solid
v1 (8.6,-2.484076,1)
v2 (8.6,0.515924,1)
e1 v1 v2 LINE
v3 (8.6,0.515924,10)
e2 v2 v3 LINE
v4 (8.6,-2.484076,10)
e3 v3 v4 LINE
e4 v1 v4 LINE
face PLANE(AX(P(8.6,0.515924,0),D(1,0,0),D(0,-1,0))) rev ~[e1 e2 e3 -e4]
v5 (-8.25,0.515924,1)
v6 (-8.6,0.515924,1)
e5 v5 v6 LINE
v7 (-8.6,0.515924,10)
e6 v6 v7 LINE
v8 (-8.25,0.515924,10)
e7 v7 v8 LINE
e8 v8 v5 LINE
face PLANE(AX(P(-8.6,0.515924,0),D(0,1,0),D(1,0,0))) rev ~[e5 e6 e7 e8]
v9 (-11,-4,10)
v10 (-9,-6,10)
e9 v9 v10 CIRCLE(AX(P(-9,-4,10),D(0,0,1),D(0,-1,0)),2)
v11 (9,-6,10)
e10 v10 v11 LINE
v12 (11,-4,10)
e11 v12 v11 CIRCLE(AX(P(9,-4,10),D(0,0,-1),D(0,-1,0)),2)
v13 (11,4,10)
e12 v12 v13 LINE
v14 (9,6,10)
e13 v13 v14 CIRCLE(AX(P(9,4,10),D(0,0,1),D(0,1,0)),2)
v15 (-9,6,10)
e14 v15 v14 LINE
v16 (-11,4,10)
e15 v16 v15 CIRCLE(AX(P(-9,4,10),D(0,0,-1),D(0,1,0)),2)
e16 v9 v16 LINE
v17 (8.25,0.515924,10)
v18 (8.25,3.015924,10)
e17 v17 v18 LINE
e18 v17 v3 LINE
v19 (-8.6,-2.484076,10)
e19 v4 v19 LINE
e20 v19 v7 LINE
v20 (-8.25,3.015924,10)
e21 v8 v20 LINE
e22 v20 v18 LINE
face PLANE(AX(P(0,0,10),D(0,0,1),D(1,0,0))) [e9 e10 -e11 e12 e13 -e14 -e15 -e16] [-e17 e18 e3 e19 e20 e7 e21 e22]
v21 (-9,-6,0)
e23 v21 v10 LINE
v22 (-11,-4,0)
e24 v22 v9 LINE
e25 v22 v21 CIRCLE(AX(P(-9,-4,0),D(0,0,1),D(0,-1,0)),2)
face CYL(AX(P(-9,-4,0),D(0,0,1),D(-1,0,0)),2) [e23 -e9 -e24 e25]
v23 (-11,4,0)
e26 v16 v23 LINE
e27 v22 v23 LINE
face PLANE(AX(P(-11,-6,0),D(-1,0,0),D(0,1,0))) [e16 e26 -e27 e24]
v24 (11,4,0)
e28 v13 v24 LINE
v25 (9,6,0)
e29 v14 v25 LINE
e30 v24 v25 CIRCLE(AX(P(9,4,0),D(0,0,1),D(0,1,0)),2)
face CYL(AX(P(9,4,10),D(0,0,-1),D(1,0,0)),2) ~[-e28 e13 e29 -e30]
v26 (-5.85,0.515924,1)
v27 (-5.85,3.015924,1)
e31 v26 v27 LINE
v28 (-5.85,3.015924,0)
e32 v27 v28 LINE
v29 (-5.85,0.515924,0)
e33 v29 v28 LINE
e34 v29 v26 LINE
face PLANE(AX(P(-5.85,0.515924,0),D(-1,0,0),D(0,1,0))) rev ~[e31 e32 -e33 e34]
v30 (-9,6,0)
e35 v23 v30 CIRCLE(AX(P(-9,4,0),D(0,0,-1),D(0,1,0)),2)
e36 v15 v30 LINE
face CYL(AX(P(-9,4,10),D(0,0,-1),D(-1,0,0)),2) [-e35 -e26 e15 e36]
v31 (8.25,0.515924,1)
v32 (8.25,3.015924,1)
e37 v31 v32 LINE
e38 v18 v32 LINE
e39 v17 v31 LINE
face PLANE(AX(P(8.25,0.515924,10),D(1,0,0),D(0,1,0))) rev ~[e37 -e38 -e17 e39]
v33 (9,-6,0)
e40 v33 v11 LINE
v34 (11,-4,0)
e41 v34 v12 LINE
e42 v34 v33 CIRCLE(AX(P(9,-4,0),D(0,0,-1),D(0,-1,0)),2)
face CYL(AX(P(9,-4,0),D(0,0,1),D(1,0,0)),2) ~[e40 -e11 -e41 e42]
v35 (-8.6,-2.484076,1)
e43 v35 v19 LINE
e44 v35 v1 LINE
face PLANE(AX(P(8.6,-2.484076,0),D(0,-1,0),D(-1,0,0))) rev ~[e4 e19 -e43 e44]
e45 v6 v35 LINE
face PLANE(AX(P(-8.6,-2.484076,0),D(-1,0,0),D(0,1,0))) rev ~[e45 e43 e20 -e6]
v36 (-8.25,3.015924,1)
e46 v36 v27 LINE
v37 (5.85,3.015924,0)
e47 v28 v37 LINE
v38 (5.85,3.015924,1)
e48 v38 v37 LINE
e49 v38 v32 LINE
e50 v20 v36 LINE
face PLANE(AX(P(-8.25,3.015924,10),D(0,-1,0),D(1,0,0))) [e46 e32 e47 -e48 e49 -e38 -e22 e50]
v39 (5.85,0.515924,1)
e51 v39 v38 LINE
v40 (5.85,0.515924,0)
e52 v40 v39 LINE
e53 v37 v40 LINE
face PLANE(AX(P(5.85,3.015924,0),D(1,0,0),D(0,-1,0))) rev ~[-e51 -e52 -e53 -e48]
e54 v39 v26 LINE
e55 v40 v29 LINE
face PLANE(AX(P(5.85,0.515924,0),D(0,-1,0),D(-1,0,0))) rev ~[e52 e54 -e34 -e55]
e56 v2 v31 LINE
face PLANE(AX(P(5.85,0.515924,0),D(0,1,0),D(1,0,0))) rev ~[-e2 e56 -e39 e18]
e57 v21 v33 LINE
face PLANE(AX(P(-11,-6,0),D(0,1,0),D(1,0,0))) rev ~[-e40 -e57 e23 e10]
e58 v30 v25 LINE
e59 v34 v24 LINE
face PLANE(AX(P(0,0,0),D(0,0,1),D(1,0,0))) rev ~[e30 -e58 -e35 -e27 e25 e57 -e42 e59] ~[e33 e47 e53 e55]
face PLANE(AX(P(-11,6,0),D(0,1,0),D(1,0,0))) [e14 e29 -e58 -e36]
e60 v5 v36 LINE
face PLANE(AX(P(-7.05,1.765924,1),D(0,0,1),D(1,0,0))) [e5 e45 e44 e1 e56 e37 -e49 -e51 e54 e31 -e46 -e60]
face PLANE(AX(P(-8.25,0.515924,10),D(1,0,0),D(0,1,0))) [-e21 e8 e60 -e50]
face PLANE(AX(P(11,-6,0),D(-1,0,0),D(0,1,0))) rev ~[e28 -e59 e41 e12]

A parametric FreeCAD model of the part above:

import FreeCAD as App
import Part
import Sketcher
Q = App.Units.Quantity


def edges_at(feature, points):
    """Names of the edges that pass closest to the given points."""
    edges = feature.Shape.Edges
    near = lambda p: min(range(len(edges)), key=lambda i: edges[i].distToShape(Part.Vertex(*p))[0])
    return sorted({f"Edge{near(p) + 1}" for p in points})

doc = App.newDocument("Part")
body = doc.addObject("PartDesign::Body", "Body")

sketch1 = doc.addObject("Sketcher::SketchObject", "Sketch")
body.addObject(sketch1)
sketch1.AttachmentSupport = (doc.XY_Plane, [""])
sketch1.MapMode = "FlatFace"
sketch1.addGeometry(Part.LineSegment(App.Vector(-11, 6, 0), App.Vector(-11, -6, 0)), False)
sketch1.addGeometry(Part.LineSegment(App.Vector(-11, -6, 0), App.Vector(11, -6, 0)), False)
sketch1.addGeometry(Part.LineSegment(App.Vector(11, -6, 0), App.Vector(11, 6, 0)), False)
sketch1.addGeometry(Part.LineSegment(App.Vector(11, 6, 0), App.Vector(-11, 6, 0)), False)
sketch1.addGeometry(Part.LineSegment(App.Vector(-5.8, 0.5, 0), App.Vector(-5.8, 3, 0)), False)
sketch1.addGeometry(Part.LineSegment(App.Vector(-5.8, 3, 0), App.Vector(5.8, 3, 0)), False)
sketch1.addGeometry(Part.LineSegment(App.Vector(5.8, 3, 0), App.Vector(5.8, 0.5, 0)), False)
sketch1.addGeometry(Part.LineSegment(App.Vector(5.8, 0.5, 0), App.Vector(-5.8, 0.5, 0)), False)
sketch1.addConstraint(Sketcher.Constraint("Coincident", 0, 2, 1, 1))
sketch1.addConstraint(Sketcher.Constraint("Coincident", 1, 2, 2, 1))
sketch1.addConstraint(Sketcher.Constraint("Coincident", 2, 2, 3, 1))
sketch1.addConstraint(Sketcher.Constraint("Coincident", 3, 2, 0, 1))
sketch1.addConstraint(Sketcher.Constraint("Coincident", 4, 2, 5, 1))
sketch1.addConstraint(Sketcher.Constraint("Coincident", 5, 2, 6, 1))
sketch1.addConstraint(Sketcher.Constraint("Coincident", 6, 2, 7, 1))
sketch1.addConstraint(Sketcher.Constraint("Coincident", 7, 2, 4, 1))
sketch1.addConstraint(Sketcher.Constraint("Vertical", 0))
sketch1.addConstraint(Sketcher.Constraint("Horizontal", 1))
sketch1.addConstraint(Sketcher.Constraint("Vertical", 2))
sketch1.addConstraint(Sketcher.Constraint("Horizontal", 3))
sketch1.addConstraint(Sketcher.Constraint("Vertical", 4))
sketch1.addConstraint(Sketcher.Constraint("Horizontal", 5))
sketch1.addConstraint(Sketcher.Constraint("Vertical", 6))
sketch1.addConstraint(Sketcher.Constraint("Horizontal", 7))
sketch1.addConstraint(Sketcher.Constraint("Symmetric", 0, 2, 2, 2, -1, 1))
sketch1.addConstraint(Sketcher.Constraint("DistanceX", 1, 1, 1, 2, Q("22 mm")))
sketch1.addConstraint(Sketcher.Constraint("DistanceY", 0, 2, 0, 1, Q("12 mm")))
sketch1.addConstraint(Sketcher.Constraint("DistanceX", 5, 1, 5, 2, Q("11.7 mm")))
sketch1.addConstraint(Sketcher.Constraint("DistanceY", 4, 1, 4, 2, Q("2.5 mm")))
sketch1.addConstraint(Sketcher.Constraint("DistanceX", 4, 2, -1, 1, Q("5.85 mm")))
sketch1.addConstraint(Sketcher.Constraint("DistanceY", -1, 1, 4, 2, Q("3.015924 mm")))
pad1 = doc.addObject("PartDesign::Pad", "Pad")
body.addObject(pad1)
pad1.Profile = sketch1
pad1.Length = 1

sketch2 = doc.addObject("Sketcher::SketchObject", "Sketch001")
body.addObject(sketch2)
sketch2.AttachmentSupport = (doc.XY_Plane, [""])
sketch2.MapMode = "FlatFace"
sketch2.addGeometry(Part.LineSegment(App.Vector(-11, 6, 0), App.Vector(-11, -6, 0)), False)
sketch2.addGeometry(Part.LineSegment(App.Vector(-11, -6, 0), App.Vector(11, -6, 0)), False)
sketch2.addGeometry(Part.LineSegment(App.Vector(11, -6, 0), App.Vector(11, 6, 0)), False)
sketch2.addGeometry(Part.LineSegment(App.Vector(11, 6, 0), App.Vector(-11, 6, 0)), False)
sketch2.addGeometry(Part.LineSegment(App.Vector(-5.8, 0.5, 0), App.Vector(-5.8, 3, 0)), False)
sketch2.addGeometry(Part.LineSegment(App.Vector(-5.8, 3, 0), App.Vector(5.8, 3, 0)), False)
sketch2.addGeometry(Part.LineSegment(App.Vector(5.8, 3, 0), App.Vector(5.8, 0.5, 0)), False)
sketch2.addGeometry(Part.LineSegment(App.Vector(5.8, 0.5, 0), App.Vector(8.6, 0.5, 0)), False)
sketch2.addGeometry(Part.LineSegment(App.Vector(8.6, 0.5, 0), App.Vector(8.6, -2.5, 0)), False)
sketch2.addGeometry(Part.LineSegment(App.Vector(8.6, -2.5, 0), App.Vector(-8.6, -2.5, 0)), False)
sketch2.addGeometry(Part.LineSegment(App.Vector(-8.6, -2.5, 0), App.Vector(-8.6, 0.5, 0)), False)
sketch2.addGeometry(Part.LineSegment(App.Vector(-8.6, 0.5, 0), App.Vector(-5.8, 0.5, 0)), False)
sketch2.addConstraint(Sketcher.Constraint("Coincident", 0, 2, 1, 1))
sketch2.addConstraint(Sketcher.Constraint("Coincident", 1, 2, 2, 1))
sketch2.addConstraint(Sketcher.Constraint("Coincident", 2, 2, 3, 1))
sketch2.addConstraint(Sketcher.Constraint("Coincident", 3, 2, 0, 1))
sketch2.addConstraint(Sketcher.Constraint("Coincident", 4, 2, 5, 1))
sketch2.addConstraint(Sketcher.Constraint("Coincident", 5, 2, 6, 1))
sketch2.addConstraint(Sketcher.Constraint("Coincident", 6, 2, 7, 1))
sketch2.addConstraint(Sketcher.Constraint("Coincident", 7, 2, 8, 1))
sketch2.addConstraint(Sketcher.Constraint("Coincident", 8, 2, 9, 1))
sketch2.addConstraint(Sketcher.Constraint("Coincident", 9, 2, 10, 1))
sketch2.addConstraint(Sketcher.Constraint("Coincident", 10, 2, 11, 1))
sketch2.addConstraint(Sketcher.Constraint("Coincident", 11, 2, 4, 1))
sketch2.addConstraint(Sketcher.Constraint("Vertical", 0))
sketch2.addConstraint(Sketcher.Constraint("Horizontal", 1))
sketch2.addConstraint(Sketcher.Constraint("Vertical", 2))
sketch2.addConstraint(Sketcher.Constraint("Horizontal", 3))
sketch2.addConstraint(Sketcher.Constraint("Vertical", 4))
sketch2.addConstraint(Sketcher.Constraint("Horizontal", 5))
sketch2.addConstraint(Sketcher.Constraint("Vertical", 6))
sketch2.addConstraint(Sketcher.Constraint("Horizontal", 7))
sketch2.addConstraint(Sketcher.Constraint("Vertical", 8))
sketch2.addConstraint(Sketcher.Constraint("Horizontal", 9))
sketch2.addConstraint(Sketcher.Constraint("Vertical", 10))
sketch2.addConstraint(Sketcher.Constraint("Horizontal", 11))
sketch2.addConstraint(Sketcher.Constraint("Symmetric", 0, 2, 2, 2, -1, 1))
sketch2.addConstraint(Sketcher.Constraint("Symmetric", 7, 2, 10, 2, -2))
sketch2.addConstraint(Sketcher.Constraint("Equal", 7, 11))
sketch2.addConstraint(Sketcher.Constraint("DistanceX", 1, 1, 1, 2, Q("22 mm")))
sketch2.addConstraint(Sketcher.Constraint("DistanceY", 0, 2, 0, 1, Q("12 mm")))
sketch2.addConstraint(Sketcher.Constraint("DistanceY", 8, 2, 8, 1, Q("3 mm")))
sketch2.addConstraint(Sketcher.Constraint("DistanceX", 5, 1, 5, 2, Q("11.7 mm")))
sketch2.addConstraint(Sketcher.Constraint("DistanceX", 9, 2, 9, 1, Q("17.2 mm")))
sketch2.addConstraint(Sketcher.Constraint("DistanceY", 4, 1, 4, 2, Q("2.5 mm")))
sketch2.addConstraint(Sketcher.Constraint("DistanceY", -1, 1, 4, 2, Q("3.015924 mm")))
pad2 = doc.addObject("PartDesign::Pad", "Pad001")
body.addObject(pad2)
pad2.Profile = sketch2
pad2.Length = 10

sketch3 = doc.addObject("Sketcher::SketchObject", "Sketch002")
body.addObject(sketch3)
sketch3.AttachmentSupport = (doc.XY_Plane, [""])
sketch3.MapMode = "FlatFace"
sketch3.AttachmentOffset = App.Placement(App.Vector(0, 0, 10), App.Rotation())
sketch3.addGeometry(Part.LineSegment(App.Vector(-8.2, 3, 0), App.Vector(-8.2, 0.5, 0)), False)
sketch3.addGeometry(Part.LineSegment(App.Vector(-8.2, 0.5, 0), App.Vector(-5.8, 0.5, 0)), False)
sketch3.addGeometry(Part.LineSegment(App.Vector(-5.8, 0.5, 0), App.Vector(-5.8, 3, 0)), False)
sketch3.addGeometry(Part.LineSegment(App.Vector(-5.8, 3, 0), App.Vector(-8.2, 3, 0)), False)
sketch3.addGeometry(Part.LineSegment(App.Vector(5.8, 3, 0), App.Vector(5.8, 0.5, 0)), False)
sketch3.addGeometry(Part.LineSegment(App.Vector(5.8, 0.5, 0), App.Vector(8.2, 0.5, 0)), False)
sketch3.addGeometry(Part.LineSegment(App.Vector(8.2, 0.5, 0), App.Vector(8.2, 3, 0)), False)
sketch3.addGeometry(Part.LineSegment(App.Vector(8.2, 3, 0), App.Vector(5.8, 3, 0)), False)
sketch3.addConstraint(Sketcher.Constraint("Coincident", 0, 2, 1, 1))
sketch3.addConstraint(Sketcher.Constraint("Coincident", 1, 2, 2, 1))
sketch3.addConstraint(Sketcher.Constraint("Coincident", 2, 2, 3, 1))
sketch3.addConstraint(Sketcher.Constraint("Coincident", 3, 2, 0, 1))
sketch3.addConstraint(Sketcher.Constraint("Coincident", 4, 2, 5, 1))
sketch3.addConstraint(Sketcher.Constraint("Coincident", 5, 2, 6, 1))
sketch3.addConstraint(Sketcher.Constraint("Coincident", 6, 2, 7, 1))
sketch3.addConstraint(Sketcher.Constraint("Coincident", 7, 2, 4, 1))
sketch3.addConstraint(Sketcher.Constraint("Vertical", 0))
sketch3.addConstraint(Sketcher.Constraint("Horizontal", 1))
sketch3.addConstraint(Sketcher.Constraint("Vertical", 2))
sketch3.addConstraint(Sketcher.Constraint("Horizontal", 3))
sketch3.addConstraint(Sketcher.Constraint("Vertical", 4))
sketch3.addConstraint(Sketcher.Constraint("Horizontal", 5))
sketch3.addConstraint(Sketcher.Constraint("Vertical", 6))
sketch3.addConstraint(Sketcher.Constraint("Horizontal", 7))
sketch3.addConstraint(Sketcher.Constraint("Symmetric", 1, 2, 4, 2, -2))
sketch3.addConstraint(Sketcher.Constraint("Symmetric", 3, 2, 6, 2, -2))
sketch3.addConstraint(Sketcher.Constraint("DistanceX", 1, 1, 1, 2, Q("2.4 mm")))
sketch3.addConstraint(Sketcher.Constraint("DistanceY", 0, 2, 0, 1, Q("2.5 mm")))
sketch3.addConstraint(Sketcher.Constraint("DistanceX", 1, 2, 4, 2, Q("11.7 mm")))
sketch3.addConstraint(Sketcher.Constraint("DistanceY", -1, 1, 0, 2, Q("0.515924 mm")))
pocket1 = doc.addObject("PartDesign::Pocket", "Pocket")
body.addObject(pocket1)
pocket1.Profile = sketch3
pocket1.Length = 9
doc.recompute()

fillet = doc.addObject("PartDesign::Fillet", "Fillet")
body.addObject(fillet)
fillet.Base = (pocket1, edges_at(pocket1, [
    (-11, -6, 5),
    (11, -6, 5),
    (-11, 6, 5),
    (11, 6, 5),
]))
fillet.Radius = 2

doc.recompute()
